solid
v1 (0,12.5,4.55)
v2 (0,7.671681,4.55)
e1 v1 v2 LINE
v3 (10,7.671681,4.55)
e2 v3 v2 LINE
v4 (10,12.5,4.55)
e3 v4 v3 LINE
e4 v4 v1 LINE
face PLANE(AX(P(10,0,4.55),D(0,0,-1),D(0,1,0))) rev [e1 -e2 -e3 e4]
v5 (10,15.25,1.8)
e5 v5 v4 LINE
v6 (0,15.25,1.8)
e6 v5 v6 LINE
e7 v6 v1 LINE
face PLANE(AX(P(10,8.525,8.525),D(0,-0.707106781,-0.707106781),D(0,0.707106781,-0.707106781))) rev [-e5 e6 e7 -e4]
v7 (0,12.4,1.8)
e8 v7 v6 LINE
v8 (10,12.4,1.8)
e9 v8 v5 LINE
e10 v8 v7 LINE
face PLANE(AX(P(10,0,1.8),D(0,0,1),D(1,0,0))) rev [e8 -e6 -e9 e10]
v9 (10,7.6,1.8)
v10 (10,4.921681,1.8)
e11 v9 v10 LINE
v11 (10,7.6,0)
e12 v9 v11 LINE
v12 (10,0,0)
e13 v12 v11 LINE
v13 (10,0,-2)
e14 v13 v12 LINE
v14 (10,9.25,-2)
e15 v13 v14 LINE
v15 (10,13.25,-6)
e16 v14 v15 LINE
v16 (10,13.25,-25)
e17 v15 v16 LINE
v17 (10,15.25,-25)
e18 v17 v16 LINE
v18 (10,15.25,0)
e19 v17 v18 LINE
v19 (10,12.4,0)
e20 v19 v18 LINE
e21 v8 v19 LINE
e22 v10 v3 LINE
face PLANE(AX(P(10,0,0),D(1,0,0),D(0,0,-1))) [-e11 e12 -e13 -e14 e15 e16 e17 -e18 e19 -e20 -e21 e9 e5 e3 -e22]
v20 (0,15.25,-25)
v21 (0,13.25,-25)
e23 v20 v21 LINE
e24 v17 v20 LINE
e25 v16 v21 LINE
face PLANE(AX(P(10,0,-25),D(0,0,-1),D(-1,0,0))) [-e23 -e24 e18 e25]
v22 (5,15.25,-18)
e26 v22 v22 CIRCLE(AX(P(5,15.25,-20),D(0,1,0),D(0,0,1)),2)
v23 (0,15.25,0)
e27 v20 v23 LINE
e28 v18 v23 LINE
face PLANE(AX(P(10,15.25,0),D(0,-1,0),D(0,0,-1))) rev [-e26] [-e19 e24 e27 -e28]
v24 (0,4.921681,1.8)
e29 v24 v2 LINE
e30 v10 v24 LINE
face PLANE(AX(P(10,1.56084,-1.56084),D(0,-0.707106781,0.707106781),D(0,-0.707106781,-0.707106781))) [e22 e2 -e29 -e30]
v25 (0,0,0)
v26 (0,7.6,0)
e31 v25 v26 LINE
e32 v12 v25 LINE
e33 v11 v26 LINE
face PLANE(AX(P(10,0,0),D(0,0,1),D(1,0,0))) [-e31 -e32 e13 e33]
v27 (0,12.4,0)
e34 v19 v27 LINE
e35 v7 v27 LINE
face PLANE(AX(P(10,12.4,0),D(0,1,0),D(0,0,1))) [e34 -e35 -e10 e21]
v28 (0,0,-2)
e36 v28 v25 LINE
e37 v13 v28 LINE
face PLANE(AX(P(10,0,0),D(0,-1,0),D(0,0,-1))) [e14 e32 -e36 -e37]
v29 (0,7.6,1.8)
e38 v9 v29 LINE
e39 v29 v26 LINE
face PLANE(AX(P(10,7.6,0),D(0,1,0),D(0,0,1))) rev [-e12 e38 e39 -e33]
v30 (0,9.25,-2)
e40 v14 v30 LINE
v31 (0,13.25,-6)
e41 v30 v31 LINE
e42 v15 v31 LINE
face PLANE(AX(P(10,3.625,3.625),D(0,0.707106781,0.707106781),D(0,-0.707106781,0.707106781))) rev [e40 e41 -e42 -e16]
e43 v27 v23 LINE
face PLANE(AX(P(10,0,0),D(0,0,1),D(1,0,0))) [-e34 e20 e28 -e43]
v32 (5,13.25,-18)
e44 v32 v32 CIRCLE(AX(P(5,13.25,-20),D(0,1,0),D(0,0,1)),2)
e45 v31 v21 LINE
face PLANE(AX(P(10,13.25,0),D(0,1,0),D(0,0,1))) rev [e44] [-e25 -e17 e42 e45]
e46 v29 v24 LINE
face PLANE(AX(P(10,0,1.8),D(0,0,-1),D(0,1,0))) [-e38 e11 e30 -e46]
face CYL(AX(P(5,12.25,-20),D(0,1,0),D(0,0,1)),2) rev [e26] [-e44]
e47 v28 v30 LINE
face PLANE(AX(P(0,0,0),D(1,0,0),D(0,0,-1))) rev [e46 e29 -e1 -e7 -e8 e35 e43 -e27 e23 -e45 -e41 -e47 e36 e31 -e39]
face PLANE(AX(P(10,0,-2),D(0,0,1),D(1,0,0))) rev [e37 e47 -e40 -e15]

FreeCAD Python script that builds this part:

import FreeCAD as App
import Part
import Sketcher
Q = App.Units.Quantity


def add_polygon(sketch, points):
    """Adds a closed chain of lines whose ends are joined by coincident constraints."""
    first, n = sketch.GeometryCount, len(points)
    for a, b in zip(points, points[1:] + points[:1]):
        sketch.addGeometry(Part.LineSegment(App.Vector(*a, 0), App.Vector(*b, 0)), False)
    for i in range(n):
        sketch.addConstraint(Sketcher.Constraint("Coincident", first + i, 2, first + (i + 1) % n, 1))

doc = App.newDocument("Part")
body = doc.addObject("PartDesign::Body", "Body")

sketch1 = doc.addObject("Sketcher::SketchObject", "Sketch")
body.addObject(sketch1)
sketch1.AttachmentSupport = (doc.YZ_Plane, [""])
sketch1.MapMode = "FlatFace"
add_polygon(sketch1, [(7.6, 0), (0, 0), (0, -2), (9.25, -2), (13.25, -6), (13.25, -25), (15.25, -25), (15.25, 0), (12.4, 0), (12.4, 1.8), (15.25, 1.8), (12.5, 4.55), (7.671681, 4.55), (4.921681, 1.8), (7.6, 1.8)])
sketch1.addConstraint([
    Sketcher.Constraint("Horizontal", 0),
    Sketcher.Constraint("Vertical", 1),
    Sketcher.Constraint("Horizontal", 2),
    Sketcher.Constraint("Vertical", 4),
    Sketcher.Constraint("Horizontal", 5),
    Sketcher.Constraint("Vertical", 6),
    Sketcher.Constraint("Horizontal", 7),
    Sketcher.Constraint("Vertical", 8),
    Sketcher.Constraint("Horizontal", 9),
    Sketcher.Constraint("Horizontal", 11),
    Sketcher.Constraint("Horizontal", 13),
    Sketcher.Constraint("Vertical", 14),
    Sketcher.Constraint("Coincident", 0, 2, -1, 1),
    Sketcher.Constraint("PointOnObject", 6, 2, -1),
    Sketcher.Constraint("Parallel", 3, 10),
    Sketcher.Constraint("Perpendicular", 10, 12),
    Sketcher.Constraint("Horizontal", 9, 2, 12, 2),
    Sketcher.Constraint("Vertical", 6, 2, 9, 2),
    Sketcher.Constraint("Equal", 5, 1),
    Sketcher.Constraint("Equal", 10, 12),
    Sketcher.Constraint("DistanceX", 5, 1, 5, 2, Q("2 mm")),
    Sketcher.Constraint("DistanceY", 4, 2, 4, 1, Q("19 mm")),
    Sketcher.Constraint("DistanceY", 6, 1, 6, 2, Q("25 mm")),
    Sketcher.Constraint("DistanceX", 0, 2, 0, 1, Q("7.6 mm")),
    Sketcher.Constraint("DistanceY", 8, 1, 8, 2, Q("1.8 mm")),
    Sketcher.Constraint("DistanceX", 2, 1, 2, 2, Q("9.25 mm")),
    Sketcher.Constraint("DistanceX", 7, 2, 7, 1, Q("2.85 mm")),
    Sketcher.Constraint("DistanceX", -1, 1, 10, 2, Q("12.5 mm")),
    Sketcher.Constraint("DistanceX", 11, 2, 11, 1, Q("4.828319 mm")),
])
pad1 = doc.addObject("PartDesign::Pad", "Pad")
body.addObject(pad1)
pad1.Profile = sketch1
pad1.Length = 10

sketch2 = doc.addObject("Sketcher::SketchObject", "Sketch001")
body.addObject(sketch2)
sketch2.AttachmentSupport = (doc.XZ_Plane, [""])
sketch2.MapMode = "FlatFace"
sketch2.AttachmentOffset = App.Placement(App.Vector(0, 0, -15.25), App.Rotation())
sketch2.addGeometry(Part.Circle(App.Vector(5, -20, 0), App.Vector(0, 0, 1), 2), False)
sketch2.addConstraint([
    Sketcher.Constraint("Diameter", 0, Q("4 mm")),
    Sketcher.Constraint("DistanceX", -1, 1, 0, 3, Q("5 mm")),
    Sketcher.Constraint("DistanceY", 0, 3, -1, 1, Q("20 mm")),
])
pocket1 = doc.addObject("PartDesign::Pocket", "Pocket")
body.addObject(pocket1)
pocket1.Profile = sketch2
pocket1.Length = 3
pocket1.Reversed = True

doc.recompute()
